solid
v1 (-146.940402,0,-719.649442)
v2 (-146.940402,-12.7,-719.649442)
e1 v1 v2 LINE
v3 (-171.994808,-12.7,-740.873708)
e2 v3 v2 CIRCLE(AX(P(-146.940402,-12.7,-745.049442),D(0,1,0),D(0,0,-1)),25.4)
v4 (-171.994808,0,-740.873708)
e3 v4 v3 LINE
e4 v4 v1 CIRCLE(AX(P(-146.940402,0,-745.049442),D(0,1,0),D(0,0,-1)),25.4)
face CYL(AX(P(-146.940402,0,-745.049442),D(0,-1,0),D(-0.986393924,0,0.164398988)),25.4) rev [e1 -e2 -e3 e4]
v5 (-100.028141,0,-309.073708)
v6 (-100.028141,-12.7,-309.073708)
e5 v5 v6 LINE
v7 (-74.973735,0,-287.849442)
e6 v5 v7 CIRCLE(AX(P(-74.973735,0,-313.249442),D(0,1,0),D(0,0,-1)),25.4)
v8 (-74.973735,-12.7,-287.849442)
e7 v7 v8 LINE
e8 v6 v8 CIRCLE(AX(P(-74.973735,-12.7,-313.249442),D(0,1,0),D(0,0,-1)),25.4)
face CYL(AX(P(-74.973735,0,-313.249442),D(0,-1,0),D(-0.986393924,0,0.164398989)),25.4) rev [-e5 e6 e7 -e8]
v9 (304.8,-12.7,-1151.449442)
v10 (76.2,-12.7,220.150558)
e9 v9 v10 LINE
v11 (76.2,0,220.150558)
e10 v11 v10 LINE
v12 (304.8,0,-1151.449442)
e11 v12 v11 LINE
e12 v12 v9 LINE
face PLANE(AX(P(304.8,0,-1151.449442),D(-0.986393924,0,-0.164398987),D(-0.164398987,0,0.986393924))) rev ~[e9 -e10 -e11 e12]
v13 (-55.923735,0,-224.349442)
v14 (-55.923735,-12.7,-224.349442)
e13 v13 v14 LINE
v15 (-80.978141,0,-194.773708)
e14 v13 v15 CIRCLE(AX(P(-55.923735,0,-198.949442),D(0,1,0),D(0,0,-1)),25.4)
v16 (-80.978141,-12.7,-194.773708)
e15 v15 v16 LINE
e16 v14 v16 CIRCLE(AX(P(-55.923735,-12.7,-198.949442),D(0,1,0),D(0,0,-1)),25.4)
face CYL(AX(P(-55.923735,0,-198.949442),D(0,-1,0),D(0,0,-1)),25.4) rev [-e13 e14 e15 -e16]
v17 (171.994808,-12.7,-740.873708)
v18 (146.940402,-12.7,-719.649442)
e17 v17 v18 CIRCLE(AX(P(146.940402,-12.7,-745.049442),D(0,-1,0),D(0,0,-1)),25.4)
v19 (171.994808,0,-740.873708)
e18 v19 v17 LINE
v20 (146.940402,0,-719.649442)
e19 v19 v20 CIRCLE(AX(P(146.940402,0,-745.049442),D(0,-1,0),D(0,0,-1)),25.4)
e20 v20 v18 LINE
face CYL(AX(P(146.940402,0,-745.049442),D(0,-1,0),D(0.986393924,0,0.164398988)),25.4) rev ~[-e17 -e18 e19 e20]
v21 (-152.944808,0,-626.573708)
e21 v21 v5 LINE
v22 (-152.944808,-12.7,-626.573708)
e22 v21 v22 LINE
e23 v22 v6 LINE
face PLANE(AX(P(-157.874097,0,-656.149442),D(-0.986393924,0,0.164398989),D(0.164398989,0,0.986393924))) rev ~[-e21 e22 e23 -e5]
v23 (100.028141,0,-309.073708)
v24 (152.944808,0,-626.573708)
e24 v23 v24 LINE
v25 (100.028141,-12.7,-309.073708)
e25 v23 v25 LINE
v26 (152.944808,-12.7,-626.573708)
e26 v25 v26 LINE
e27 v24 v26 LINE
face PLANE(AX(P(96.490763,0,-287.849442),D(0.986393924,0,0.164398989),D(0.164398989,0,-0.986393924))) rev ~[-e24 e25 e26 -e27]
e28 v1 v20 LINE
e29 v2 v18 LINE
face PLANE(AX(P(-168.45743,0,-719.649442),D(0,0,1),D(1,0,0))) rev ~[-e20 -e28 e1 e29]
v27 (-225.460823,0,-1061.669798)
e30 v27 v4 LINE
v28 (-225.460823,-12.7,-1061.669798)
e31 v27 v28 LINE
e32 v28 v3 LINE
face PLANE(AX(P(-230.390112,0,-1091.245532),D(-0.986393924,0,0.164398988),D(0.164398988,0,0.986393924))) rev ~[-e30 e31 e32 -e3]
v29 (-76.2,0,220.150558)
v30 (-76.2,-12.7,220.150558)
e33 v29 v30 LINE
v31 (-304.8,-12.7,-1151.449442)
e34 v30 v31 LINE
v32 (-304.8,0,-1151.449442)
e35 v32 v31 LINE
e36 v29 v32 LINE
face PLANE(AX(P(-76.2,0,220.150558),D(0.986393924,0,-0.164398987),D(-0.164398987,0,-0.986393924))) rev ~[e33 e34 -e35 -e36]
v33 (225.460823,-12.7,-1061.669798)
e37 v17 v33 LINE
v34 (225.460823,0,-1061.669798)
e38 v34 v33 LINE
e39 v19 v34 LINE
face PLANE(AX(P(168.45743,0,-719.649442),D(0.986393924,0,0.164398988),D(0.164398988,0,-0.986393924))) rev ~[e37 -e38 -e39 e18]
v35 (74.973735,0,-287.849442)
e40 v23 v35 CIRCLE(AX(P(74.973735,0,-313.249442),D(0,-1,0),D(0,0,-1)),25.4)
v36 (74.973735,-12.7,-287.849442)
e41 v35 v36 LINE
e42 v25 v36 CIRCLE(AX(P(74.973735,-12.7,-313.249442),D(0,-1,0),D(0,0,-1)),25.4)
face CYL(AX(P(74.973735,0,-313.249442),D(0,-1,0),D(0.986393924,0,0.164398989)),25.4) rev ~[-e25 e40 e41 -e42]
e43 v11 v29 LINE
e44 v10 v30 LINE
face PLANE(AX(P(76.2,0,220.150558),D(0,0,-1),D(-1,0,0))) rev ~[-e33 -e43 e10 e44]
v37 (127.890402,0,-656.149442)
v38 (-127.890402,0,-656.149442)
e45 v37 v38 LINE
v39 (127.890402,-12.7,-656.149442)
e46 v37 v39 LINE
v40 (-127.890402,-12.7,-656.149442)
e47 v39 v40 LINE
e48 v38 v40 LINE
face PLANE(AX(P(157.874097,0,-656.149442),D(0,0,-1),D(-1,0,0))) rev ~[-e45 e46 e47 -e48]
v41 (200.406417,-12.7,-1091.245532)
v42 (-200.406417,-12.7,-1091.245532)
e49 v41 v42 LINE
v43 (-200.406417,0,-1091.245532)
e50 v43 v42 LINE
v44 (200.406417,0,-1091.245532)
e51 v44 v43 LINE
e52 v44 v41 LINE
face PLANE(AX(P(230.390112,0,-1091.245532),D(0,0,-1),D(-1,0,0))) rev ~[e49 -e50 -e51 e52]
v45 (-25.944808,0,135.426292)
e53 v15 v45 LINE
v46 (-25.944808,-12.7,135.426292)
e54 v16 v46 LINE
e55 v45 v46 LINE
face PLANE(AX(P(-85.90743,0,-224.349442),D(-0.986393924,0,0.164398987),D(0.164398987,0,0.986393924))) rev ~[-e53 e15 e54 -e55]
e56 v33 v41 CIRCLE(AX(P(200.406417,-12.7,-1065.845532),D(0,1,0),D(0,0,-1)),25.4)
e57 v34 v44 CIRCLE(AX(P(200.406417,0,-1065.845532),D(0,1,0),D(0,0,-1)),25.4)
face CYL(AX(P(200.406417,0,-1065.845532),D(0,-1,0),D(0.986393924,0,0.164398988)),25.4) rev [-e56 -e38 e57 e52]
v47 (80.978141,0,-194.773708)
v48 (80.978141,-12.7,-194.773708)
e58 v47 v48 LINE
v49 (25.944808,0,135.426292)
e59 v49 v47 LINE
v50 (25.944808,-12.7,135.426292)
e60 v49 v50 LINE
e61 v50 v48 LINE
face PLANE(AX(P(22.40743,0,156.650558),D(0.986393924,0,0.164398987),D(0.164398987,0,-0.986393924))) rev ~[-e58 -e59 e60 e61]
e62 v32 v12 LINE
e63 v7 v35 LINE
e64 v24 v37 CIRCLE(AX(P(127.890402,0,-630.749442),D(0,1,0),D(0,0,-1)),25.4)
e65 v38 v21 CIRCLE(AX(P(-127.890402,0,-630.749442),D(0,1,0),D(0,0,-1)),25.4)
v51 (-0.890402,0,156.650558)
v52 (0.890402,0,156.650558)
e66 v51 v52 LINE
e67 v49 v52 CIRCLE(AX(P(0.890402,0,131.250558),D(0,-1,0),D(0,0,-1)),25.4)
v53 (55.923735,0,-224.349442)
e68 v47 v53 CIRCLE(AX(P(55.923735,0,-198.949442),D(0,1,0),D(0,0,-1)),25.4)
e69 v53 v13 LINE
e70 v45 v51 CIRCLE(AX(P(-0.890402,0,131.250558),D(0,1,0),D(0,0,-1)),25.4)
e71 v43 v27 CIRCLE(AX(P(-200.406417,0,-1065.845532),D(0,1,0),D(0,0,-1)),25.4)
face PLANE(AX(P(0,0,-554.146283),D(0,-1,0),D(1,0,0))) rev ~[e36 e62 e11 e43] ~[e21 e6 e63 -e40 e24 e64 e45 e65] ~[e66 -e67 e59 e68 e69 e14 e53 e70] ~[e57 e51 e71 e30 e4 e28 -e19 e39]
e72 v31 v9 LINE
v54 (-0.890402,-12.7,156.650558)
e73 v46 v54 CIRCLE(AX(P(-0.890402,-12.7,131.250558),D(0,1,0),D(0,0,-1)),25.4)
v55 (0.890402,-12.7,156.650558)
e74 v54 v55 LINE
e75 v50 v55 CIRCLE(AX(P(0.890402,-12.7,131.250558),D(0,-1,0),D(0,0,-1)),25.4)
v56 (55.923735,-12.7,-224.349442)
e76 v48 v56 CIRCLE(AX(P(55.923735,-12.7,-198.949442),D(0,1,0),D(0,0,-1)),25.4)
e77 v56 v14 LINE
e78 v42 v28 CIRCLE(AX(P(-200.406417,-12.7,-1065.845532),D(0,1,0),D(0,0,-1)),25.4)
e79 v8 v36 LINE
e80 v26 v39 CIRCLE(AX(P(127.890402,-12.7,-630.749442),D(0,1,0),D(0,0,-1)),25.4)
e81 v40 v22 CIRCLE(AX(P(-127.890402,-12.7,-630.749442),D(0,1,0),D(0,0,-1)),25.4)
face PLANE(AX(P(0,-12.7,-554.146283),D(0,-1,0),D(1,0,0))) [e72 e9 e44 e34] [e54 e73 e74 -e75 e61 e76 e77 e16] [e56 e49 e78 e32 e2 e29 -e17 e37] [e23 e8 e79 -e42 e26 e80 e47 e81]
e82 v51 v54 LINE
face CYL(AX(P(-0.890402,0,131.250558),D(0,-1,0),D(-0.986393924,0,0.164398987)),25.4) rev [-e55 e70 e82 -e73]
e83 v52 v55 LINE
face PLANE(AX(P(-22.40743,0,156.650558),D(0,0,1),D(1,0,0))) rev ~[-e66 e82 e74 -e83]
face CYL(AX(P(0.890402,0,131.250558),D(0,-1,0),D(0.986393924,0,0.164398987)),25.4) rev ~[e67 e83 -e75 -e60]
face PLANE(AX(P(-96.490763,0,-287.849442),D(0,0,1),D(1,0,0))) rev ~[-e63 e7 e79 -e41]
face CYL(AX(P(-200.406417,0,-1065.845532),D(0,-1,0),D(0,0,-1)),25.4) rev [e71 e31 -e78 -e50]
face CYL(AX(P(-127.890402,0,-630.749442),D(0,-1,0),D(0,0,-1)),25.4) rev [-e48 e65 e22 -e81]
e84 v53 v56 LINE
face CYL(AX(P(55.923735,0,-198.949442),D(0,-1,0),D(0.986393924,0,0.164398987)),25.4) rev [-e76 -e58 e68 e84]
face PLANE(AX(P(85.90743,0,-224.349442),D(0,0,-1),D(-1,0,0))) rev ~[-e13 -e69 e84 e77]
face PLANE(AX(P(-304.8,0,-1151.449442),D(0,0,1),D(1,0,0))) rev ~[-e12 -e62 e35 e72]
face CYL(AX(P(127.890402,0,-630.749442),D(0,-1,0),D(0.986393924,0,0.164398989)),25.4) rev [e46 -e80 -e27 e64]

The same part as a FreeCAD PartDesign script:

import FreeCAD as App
import Part
import Sketcher
from FreeCAD import Vector
Q = App.Units.Quantity


def edges_at(feature, points):
    """Names of the edges that pass closest to the given points."""
    edges = feature.Shape.Edges
    near = lambda p: min(range(len(edges)), key=lambda i: edges[i].distToShape(Part.Vertex(*p))[0])
    return sorted({f"Edge{near(p) + 1}" for p in points})


def add_polygon(sketch, points):
    """Adds a closed chain of lines whose ends are joined by coincident constraints."""
    first, n = sketch.GeometryCount, len(points)
    for a, b in zip(points, points[1:] + points[:1]):
        sketch.addGeometry(Part.LineSegment(App.Vector(*a, 0), App.Vector(*b, 0)), False)
    for i in range(n):
        sketch.addConstraint(Sketcher.Constraint("Coincident", first + i, 2, first + (i + 1) % n, 1))

doc = App.newDocument("Part")
params = doc.addObject("Spreadsheet::Sheet", "Params")
for row, (alias, value) in enumerate([
    ("sketch1_width", "6 in"),
    ("sketch1_width2", "24 in"),
    ("pad1_length", "0.5 in"),
    ("fillet_radius", "1 in"),
], start=1):
    params.set(f"A{row}", alias)
    params.set(f"B{row}", "=" + value)
    params.setAlias(f"B{row}", alias)

body = doc.addObject("PartDesign::Body", "Body")

sketch1 = doc.addObject("Sketcher::SketchObject", "Sketch")
body.addObject(sketch1)
sketch1.AttachmentSupport = (doc.XZ_Plane, [""])
sketch1.MapMode = "FlatFace"
add_polygon(sketch1, [(76.2, 220.150558), (-76.2, 220.150558), (-304.8, -1151.449442), (304.8, -1151.449442)])
add_polygon(sketch1, [(168.45743, -719.649442), (230.390112, -1091.245532), (-230.390112, -1091.245532), (-168.45743, -719.649442)])
add_polygon(sketch1, [(96.490763, -287.849442), (157.874097, -656.149442), (-157.874097, -656.149442), (-96.490763, -287.849442)])
add_polygon(sketch1, [(22.40743, 156.650558), (85.90743, -224.349442), (-85.90743, -224.349442), (-22.40743, 156.650558)])
sketch1.addConstraint(Sketcher.Constraint("Horizontal", 0))
sketch1.addConstraint(Sketcher.Constraint("Horizontal", 2))
sketch1.addConstraint(Sketcher.Constraint("Horizontal", 5))
sketch1.addConstraint(Sketcher.Constraint("Horizontal", 7))
sketch1.addConstraint(Sketcher.Constraint("Horizontal", 9))
sketch1.addConstraint(Sketcher.Constraint("Horizontal", 11))
sketch1.addConstraint(Sketcher.Constraint("Horizontal", 13))
sketch1.addConstraint(Sketcher.Constraint("Horizontal", 15))
sketch1.addConstraint(Sketcher.Constraint("Parallel", 3, 4))
sketch1.addConstraint(Sketcher.Constraint("Parallel", 1, 6))
sketch1.addConstraint(Sketcher.Constraint("Parallel", 4, 8))
sketch1.addConstraint(Sketcher.Constraint("Parallel", 6, 10))
sketch1.addConstraint(Sketcher.Constraint("Parallel", 8, 12))
sketch1.addConstraint(Sketcher.Constraint("Parallel", 10, 14))
sketch1.addConstraint(Sketcher.Constraint("Equal", 1, 3))
sketch1.addConstraint(Sketcher.Constraint("DistanceX", 0, 2, 0, 1, Q("6 in")))
sketch1.addConstraint(Sketcher.Constraint("DistanceX", 2, 1, 2, 2, Q("24 in")))
sketch1.addConstraint(Sketcher.Constraint("DistanceX", 0, 2, -1, 1, Q("3 in")))
sketch1.addConstraint(Sketcher.Constraint("DistanceY", 1, 2, 0, 2, Q("54 in")))
sketch1.addConstraint(Sketcher.Constraint("DistanceY", 1, 2, 6, 2, Q("17 in")))
sketch1.addConstraint(Sketcher.Constraint("DistanceY", 6, 2, 10, 2, Q("17 in")))
sketch1.addConstraint(Sketcher.Constraint("DistanceY", 8, 2, 12, 2, Q("17 in")))
sketch1.addConstraint(Sketcher.Constraint("DistanceY", 13, 2, 14, 2, Q("15 in")))
sketch1.addConstraint(Sketcher.Constraint("DistanceY", 7, 2, 8, 2, Q("2.5 in")))
sketch1.addConstraint(Sketcher.Constraint("DistanceX", 7, 1, 7, 2, Q("336.91486 mm")))
sketch1.addConstraint(Sketcher.Constraint("DistanceX", 13, 2, 13, 1, Q("171.81486 mm")))
sketch1.addConstraint(Sketcher.Constraint("DistanceX", 5, 2, 5, 1, Q("460.780224 mm")))
sketch1.addConstraint(Sketcher.Constraint("DistanceX", 9, 2, 9, 1, Q("315.748194 mm")))
sketch1.addConstraint(Sketcher.Constraint("DistanceY", 1, 2, -1, 1, Q("1151.449442 mm")))
sketch1.addConstraint(Sketcher.Constraint("DistanceX", -1, 1, 4, 2, Q("230.390112 mm")))
sketch1.addConstraint(Sketcher.Constraint("DistanceX", -1, 1, 12, 2, Q("85.90743 mm")))
sketch1.addConstraint(Sketcher.Constraint("DistanceX", 5, 2, 8, 2, Q("388.264209 mm")))
sketch1.setExpression("Constraints[31]", "Params.sketch1_width")
sketch1.setExpression("Constraints[32]", "Params.sketch1_width2")
pad1 = doc.addObject("PartDesign::Pad", "Pad")
body.addObject(pad1)
pad1.Profile = sketch1
pad1.setExpression("Length", "Params.pad1_length")
doc.recompute()

fillet = doc.addObject("PartDesign::Fillet", "Fillet")
body.addObject(fillet)
fillet.Base = (pad1, edges_at(pad1, [
    (-85.907, -6.35, -224.349),
    (85.907, -6.35, -224.349),
    (22.407, -6.35, 156.651),
    (-22.407, -6.35, 156.651),
    (-96.491, -6.35, -287.849),
    (96.491, -6.35, -287.849),
    (157.874, -6.35, -656.149),
    (-157.874, -6.35, -656.149),
    (-230.39, -6.35, -1091.246),
    (168.457, -6.35, -719.649),
    (230.39, -6.35, -1091.246),
    (-168.457, -6.35, -719.649),
]))
fillet.setExpression("Radius", "Params.fillet_radius")

doc.recompute()
